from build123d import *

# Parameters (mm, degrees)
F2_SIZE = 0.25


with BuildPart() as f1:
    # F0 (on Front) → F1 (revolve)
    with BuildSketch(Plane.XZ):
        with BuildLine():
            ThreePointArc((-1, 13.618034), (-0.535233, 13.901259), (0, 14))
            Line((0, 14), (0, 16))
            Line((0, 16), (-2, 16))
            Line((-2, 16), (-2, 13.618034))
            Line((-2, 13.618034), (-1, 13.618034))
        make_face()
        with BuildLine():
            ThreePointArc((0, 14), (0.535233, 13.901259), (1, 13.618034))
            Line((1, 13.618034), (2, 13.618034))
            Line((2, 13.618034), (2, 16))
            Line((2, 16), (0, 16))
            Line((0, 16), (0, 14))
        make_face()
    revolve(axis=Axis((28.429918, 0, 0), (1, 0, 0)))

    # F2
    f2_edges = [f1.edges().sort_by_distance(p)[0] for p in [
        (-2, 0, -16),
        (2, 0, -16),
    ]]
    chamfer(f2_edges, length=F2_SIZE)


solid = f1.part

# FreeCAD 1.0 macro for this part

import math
import FreeCAD as App
import Part
import Sketcher

V = App.Vector
Q = App.Units.Quantity


def edges_at(feature, points):
    """Names of the edges that pass closest to the given points."""
    edges = feature.Shape.Edges
    near = lambda p: min(range(len(edges)), key=lambda i: edges[i].distToShape(Part.Vertex(*p))[0])
    return sorted({f"Edge{near(p) + 1}" for p in points})

doc = App.newDocument("Part")
params = doc.addObject("Spreadsheet::Sheet", "Params")
for row, (alias, value) in enumerate([
    ("sketch1_width", "1 mm"),
    ("sketch1_width2", "4 mm"),
    ("revolution_angle", "360 deg"),
    ("chamfer_size", "0.25 mm"),
], start=1):
    params.set(f"A{row}", alias)
    params.set(f"B{row}", "=" + value)
    params.setAlias(f"B{row}", alias)

body = doc.addObject("PartDesign::Body", "Body")

# Sketch on XZ plane
sketch1 = body.newObject("Sketcher::SketchObject", "Sketch")
sketch1.AttachmentSupport = (doc.getObject("XZ_Plane"), [""])
sketch1.MapMode = "FlatFace"
sketch1.addGeometry(Part.ArcOfCircle(Part.Circle(V(0, 12.5, 0), V(0, 0, 1), 1.5), math.radians(90), math.radians(132)), False)
sketch1.addGeometry(Part.ArcOfCircle(Part.Circle(V(0, 12.5, 0), V(0, 0, 1), 1.5), math.radians(48), math.radians(90)), False)
sketch1.addGeometry(Part.LineSegment(V(1, 13.6, 0), V(2, 13.6, 0)), False)
sketch1.addGeometry(Part.LineSegment(V(2, 13.6, 0), V(2, 16, 0)), False)
sketch1.addGeometry(Part.LineSegment(V(2, 16, 0), V(-2, 16, 0)), False)
sketch1.addGeometry(Part.LineSegment(V(-2, 16, 0), V(-2, 13.6, 0)), False)
sketch1.addGeometry(Part.LineSegment(V(-2, 13.6, 0), V(-1, 13.6, 0)), False)
sketch1.addConstraint(Sketcher.Constraint("Coincident", 0, 1, 1, 2))
sketch1.addConstraint(Sketcher.Constraint("Coincident", 1, 1, 2, 1))
sketch1.addConstraint(Sketcher.Constraint("Coincident", 2, 2, 3, 1))
sketch1.addConstraint(Sketcher.Constraint("Coincident", 3, 2, 4, 1))
sketch1.addConstraint(Sketcher.Constraint("Coincident", 4, 2, 5, 1))
sketch1.addConstraint(Sketcher.Constraint("Coincident", 5, 2, 6, 1))
sketch1.addConstraint(Sketcher.Constraint("Coincident", 6, 2, 0, 2))
sketch1.addConstraint(Sketcher.Constraint("Horizontal", 2))
sketch1.addConstraint(Sketcher.Constraint("Vertical", 3))
sketch1.addConstraint(Sketcher.Constraint("Horizontal", 4))
sketch1.addConstraint(Sketcher.Constraint("Vertical", 5))
sketch1.addConstraint(Sketcher.Constraint("Horizontal", 6))
sketch1.addConstraint(Sketcher.Constraint("Coincident", 1, 3, 0, 3))
sketch1.addConstraint(Sketcher.Constraint("Symmetric", 2, 2, 5, 2, -2))
sketch1.addConstraint(Sketcher.Constraint("PointOnObject", 0, 1, -2))
sketch1.addConstraint(Sketcher.Constraint("Equal", 2, 6))
sketch1.addConstraint(Sketcher.Constraint("DistanceX", 2, 1, 2, 2, Q("1 mm")))
sketch1.addConstraint(Sketcher.Constraint("DistanceX", 4, 2, 4, 1, Q("4 mm")))
sketch1.addConstraint(Sketcher.Constraint("DistanceY", -1, 1, 0, 1, Q("14 mm")))
sketch1.addConstraint(Sketcher.Constraint("DistanceY", -1, 1, 3, 2, Q("16 mm")))
sketch1.addConstraint(Sketcher.Constraint("Radius", 0, Q("1.499995 mm")))
sketch1.setExpression("Constraints[16]", "Params.sketch1_width")
sketch1.setExpression("Constraints[17]", "Params.sketch1_width2")
revolution = body.newObject("PartDesign::Revolution", "Revolution")
revolution.Profile = sketch1
revolution.ReferenceAxis = (sketch1, ["H_Axis"])
revolution.setExpression("Angle", "Params.revolution_angle")
doc.recompute()

chamfer = body.newObject("PartDesign::Chamfer", "Chamfer")
chamfer.Base = (revolution, edges_at(revolution, [(-2, 0, -16), (2, 0, -16)]))
chamfer.setExpression("Size", "Params.chamfer_size")

doc.recompute()
